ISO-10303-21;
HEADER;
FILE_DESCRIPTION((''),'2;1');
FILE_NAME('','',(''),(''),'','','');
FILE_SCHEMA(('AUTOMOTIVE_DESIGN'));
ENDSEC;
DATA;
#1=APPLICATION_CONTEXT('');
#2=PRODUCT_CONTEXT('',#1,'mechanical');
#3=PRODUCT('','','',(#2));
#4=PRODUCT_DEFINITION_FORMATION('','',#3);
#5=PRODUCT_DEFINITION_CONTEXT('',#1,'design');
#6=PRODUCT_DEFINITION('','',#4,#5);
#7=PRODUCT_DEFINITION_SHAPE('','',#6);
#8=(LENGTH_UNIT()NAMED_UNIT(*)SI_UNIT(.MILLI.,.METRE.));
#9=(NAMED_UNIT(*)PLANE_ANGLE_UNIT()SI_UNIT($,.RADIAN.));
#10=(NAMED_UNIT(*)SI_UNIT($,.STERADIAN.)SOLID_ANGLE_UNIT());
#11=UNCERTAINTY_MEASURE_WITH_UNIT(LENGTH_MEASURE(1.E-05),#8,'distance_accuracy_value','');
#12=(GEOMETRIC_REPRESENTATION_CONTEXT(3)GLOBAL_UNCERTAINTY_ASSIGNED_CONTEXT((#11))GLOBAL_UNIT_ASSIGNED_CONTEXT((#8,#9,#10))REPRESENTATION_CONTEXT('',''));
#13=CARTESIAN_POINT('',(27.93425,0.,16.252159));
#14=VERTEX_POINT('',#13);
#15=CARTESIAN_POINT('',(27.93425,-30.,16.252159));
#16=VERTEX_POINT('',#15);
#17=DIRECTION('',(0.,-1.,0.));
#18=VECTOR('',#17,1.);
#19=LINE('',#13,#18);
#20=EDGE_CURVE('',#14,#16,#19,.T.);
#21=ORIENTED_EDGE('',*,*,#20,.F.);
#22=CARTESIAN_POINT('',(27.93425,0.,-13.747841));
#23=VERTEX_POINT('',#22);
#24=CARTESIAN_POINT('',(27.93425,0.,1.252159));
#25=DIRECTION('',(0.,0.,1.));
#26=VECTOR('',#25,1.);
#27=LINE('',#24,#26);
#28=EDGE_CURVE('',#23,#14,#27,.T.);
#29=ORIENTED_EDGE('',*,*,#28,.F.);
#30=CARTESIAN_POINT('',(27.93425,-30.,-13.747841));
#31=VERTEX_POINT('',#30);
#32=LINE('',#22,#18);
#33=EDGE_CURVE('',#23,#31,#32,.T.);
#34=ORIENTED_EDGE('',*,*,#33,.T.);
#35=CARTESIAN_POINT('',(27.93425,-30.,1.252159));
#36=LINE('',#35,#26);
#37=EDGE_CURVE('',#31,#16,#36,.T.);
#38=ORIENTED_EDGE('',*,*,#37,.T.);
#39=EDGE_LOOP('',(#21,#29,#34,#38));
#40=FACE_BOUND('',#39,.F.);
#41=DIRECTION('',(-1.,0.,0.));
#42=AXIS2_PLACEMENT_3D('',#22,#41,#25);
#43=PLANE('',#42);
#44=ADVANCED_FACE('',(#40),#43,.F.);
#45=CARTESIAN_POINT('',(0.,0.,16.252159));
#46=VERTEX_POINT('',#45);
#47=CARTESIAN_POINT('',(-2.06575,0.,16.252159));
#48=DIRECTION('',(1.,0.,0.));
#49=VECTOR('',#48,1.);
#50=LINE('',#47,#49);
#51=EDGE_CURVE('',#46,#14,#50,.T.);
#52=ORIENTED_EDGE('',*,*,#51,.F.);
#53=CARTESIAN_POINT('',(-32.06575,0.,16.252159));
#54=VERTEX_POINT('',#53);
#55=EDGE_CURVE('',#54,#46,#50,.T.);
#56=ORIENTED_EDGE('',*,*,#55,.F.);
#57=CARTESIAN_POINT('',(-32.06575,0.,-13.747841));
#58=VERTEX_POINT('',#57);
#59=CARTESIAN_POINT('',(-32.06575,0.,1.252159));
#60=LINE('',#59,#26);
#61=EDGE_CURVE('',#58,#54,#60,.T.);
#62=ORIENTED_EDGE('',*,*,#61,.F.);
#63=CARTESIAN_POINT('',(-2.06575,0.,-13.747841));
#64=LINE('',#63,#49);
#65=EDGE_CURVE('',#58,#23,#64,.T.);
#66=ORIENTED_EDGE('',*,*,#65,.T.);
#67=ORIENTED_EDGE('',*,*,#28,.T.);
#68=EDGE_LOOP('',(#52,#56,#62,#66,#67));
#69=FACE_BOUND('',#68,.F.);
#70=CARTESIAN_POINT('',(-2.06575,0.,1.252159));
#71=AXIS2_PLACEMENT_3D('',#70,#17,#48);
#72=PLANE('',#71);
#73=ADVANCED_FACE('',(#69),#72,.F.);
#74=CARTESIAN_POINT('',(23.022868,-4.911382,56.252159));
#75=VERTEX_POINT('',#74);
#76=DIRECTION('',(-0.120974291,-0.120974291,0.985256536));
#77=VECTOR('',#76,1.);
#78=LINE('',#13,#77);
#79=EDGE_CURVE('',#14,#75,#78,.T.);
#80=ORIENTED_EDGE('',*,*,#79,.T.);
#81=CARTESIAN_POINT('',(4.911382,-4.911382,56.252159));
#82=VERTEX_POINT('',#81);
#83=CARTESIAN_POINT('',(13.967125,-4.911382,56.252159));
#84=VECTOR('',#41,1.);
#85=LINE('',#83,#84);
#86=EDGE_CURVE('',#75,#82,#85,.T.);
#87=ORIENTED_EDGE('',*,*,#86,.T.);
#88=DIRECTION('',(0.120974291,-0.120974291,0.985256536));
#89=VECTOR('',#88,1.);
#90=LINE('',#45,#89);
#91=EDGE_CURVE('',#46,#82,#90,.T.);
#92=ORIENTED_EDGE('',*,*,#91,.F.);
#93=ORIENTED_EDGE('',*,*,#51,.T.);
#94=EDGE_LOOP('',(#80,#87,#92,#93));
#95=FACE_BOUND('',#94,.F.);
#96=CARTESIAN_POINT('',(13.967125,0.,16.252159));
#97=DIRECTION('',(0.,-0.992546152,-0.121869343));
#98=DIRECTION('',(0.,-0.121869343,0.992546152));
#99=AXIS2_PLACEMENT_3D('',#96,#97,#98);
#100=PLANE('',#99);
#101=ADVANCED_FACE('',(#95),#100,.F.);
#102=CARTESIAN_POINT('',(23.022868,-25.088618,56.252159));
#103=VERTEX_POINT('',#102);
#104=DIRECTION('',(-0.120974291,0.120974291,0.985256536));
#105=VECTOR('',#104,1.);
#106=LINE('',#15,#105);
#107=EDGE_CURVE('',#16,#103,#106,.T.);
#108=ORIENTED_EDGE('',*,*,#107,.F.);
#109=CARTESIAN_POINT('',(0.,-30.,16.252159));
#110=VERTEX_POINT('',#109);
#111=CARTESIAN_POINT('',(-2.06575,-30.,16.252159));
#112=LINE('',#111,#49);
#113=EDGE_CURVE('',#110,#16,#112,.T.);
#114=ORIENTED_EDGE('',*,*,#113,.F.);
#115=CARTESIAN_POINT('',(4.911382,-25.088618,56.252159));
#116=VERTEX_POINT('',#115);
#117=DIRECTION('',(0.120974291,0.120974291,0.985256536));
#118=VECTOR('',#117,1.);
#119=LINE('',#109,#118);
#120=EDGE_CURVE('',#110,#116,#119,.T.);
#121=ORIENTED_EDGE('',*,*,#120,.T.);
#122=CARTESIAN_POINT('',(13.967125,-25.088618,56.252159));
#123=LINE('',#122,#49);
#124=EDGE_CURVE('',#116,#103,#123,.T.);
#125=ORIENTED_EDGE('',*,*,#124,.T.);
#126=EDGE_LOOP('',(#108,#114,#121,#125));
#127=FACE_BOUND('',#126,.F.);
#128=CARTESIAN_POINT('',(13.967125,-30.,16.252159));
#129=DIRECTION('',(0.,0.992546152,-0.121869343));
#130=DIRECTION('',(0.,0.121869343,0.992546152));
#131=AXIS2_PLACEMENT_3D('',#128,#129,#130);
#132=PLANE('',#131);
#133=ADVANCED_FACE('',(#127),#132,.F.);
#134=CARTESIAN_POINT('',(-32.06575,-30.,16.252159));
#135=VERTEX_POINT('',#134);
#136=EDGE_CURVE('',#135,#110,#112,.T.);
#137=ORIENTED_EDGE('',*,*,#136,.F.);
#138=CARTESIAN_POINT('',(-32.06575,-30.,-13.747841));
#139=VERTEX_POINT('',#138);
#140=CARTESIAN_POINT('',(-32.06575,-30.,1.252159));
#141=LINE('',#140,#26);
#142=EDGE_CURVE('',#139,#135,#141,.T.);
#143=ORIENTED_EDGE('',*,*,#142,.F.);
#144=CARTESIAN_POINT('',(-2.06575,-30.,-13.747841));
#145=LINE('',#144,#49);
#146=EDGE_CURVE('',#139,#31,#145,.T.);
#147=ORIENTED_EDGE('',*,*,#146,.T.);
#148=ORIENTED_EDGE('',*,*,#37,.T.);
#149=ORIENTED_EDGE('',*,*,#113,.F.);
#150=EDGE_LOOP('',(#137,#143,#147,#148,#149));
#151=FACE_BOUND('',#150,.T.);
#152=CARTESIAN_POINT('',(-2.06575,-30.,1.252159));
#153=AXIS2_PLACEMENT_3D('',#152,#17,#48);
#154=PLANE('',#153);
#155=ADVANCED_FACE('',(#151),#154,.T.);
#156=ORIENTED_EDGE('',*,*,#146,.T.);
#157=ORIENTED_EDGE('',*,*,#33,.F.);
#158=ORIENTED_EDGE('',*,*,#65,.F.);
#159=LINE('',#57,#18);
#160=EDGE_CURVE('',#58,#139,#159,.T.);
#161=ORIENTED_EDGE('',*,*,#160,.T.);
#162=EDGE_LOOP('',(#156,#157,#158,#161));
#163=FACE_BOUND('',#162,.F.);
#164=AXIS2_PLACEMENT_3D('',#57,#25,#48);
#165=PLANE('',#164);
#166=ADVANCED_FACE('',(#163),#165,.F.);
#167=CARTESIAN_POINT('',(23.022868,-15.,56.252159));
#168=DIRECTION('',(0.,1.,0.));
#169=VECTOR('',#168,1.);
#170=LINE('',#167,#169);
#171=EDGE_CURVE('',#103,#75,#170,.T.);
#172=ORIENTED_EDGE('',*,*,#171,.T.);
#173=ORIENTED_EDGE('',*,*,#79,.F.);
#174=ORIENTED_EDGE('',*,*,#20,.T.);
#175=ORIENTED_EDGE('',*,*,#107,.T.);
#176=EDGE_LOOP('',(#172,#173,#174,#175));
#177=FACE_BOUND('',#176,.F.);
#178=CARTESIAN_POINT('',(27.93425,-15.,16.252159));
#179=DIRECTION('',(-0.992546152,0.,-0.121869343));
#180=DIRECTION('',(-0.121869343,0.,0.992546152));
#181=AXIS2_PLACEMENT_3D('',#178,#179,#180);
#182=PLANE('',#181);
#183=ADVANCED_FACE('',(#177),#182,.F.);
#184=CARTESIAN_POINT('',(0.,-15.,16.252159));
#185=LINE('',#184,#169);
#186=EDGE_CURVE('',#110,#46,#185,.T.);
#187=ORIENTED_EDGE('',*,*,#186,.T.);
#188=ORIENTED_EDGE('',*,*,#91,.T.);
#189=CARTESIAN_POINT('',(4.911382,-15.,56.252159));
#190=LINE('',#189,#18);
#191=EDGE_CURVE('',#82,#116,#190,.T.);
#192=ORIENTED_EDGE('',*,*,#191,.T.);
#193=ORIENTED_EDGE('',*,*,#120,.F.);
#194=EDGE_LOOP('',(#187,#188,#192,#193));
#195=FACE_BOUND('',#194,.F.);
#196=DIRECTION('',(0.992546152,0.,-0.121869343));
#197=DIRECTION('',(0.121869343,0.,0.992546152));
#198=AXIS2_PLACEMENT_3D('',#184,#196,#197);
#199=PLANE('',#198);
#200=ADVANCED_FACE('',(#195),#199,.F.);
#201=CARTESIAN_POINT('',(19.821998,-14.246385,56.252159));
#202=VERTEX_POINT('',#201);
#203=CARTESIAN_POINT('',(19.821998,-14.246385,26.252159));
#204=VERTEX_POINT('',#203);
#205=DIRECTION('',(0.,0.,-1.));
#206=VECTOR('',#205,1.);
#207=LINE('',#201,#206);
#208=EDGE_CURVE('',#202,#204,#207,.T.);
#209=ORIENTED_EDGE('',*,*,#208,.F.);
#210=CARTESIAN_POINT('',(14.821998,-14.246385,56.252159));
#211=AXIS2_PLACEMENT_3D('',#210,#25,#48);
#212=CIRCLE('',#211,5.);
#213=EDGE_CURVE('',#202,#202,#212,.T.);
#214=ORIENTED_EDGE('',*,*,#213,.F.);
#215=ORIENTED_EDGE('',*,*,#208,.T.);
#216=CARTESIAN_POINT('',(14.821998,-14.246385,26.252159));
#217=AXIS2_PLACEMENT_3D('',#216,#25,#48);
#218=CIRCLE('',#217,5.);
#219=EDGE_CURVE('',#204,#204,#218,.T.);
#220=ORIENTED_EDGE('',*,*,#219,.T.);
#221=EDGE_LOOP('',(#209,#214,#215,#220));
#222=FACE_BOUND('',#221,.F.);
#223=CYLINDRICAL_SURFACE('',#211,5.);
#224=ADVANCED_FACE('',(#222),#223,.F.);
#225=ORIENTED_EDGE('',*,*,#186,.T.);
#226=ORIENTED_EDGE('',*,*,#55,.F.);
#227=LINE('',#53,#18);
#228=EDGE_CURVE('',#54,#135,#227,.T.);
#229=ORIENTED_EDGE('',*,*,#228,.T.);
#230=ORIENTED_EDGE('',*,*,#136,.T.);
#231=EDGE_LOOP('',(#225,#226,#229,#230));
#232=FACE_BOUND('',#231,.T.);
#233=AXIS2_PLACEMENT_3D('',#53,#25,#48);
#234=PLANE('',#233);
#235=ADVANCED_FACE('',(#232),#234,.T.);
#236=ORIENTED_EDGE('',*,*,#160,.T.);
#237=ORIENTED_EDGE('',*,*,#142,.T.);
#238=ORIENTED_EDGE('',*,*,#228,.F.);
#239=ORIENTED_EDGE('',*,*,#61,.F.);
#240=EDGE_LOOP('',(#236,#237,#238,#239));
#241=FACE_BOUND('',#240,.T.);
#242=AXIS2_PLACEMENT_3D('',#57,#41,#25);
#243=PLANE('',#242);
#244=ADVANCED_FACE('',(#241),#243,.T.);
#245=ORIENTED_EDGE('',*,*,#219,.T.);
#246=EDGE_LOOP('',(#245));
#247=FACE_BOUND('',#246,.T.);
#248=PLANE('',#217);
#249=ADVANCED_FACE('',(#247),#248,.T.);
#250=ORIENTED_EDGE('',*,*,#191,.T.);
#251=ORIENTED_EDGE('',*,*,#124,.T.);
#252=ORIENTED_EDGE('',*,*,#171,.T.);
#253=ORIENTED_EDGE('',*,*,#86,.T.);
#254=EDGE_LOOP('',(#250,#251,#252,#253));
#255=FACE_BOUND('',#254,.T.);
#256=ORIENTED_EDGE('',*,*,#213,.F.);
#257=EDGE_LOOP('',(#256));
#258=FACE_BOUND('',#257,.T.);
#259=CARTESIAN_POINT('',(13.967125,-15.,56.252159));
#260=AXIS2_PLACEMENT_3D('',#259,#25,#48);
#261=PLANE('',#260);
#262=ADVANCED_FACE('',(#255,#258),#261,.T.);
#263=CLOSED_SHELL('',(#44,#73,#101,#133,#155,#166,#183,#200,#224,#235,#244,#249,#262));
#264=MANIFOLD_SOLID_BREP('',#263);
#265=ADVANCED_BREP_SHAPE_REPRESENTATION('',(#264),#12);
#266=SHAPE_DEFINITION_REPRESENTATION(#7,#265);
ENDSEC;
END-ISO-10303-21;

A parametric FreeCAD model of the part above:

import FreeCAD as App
import Part
import Sketcher
from FreeCAD import Vector


def add_polygon(sketch, points):
    """Adds a closed chain of lines whose ends are joined by coincident constraints."""
    first, n = sketch.GeometryCount, len(points)
    for a, b in zip(points, points[1:] + points[:1]):
        sketch.addGeometry(Part.LineSegment(App.Vector(*a, 0), App.Vector(*b, 0)), False)
    for i in range(n):
        sketch.addConstraint(Sketcher.Constraint("Coincident", first + i, 2, first + (i + 1) % n, 1))

doc = App.newDocument("Part")
params = doc.addObject("Spreadsheet::Sheet", "Params")
for row, (alias, value) in enumerate([
    ("sketch1_width", "60 mm"),
    ("sketch1_height", "30 mm"),
    ("pad1_length", "30 mm"),
    ("sketch2_height", "30 mm"),
    ("pad2_length", "40 mm"),
    ("pad2_taper", "-7 deg"),
    ("sketch3_diameter", "10 mm"),
    ("pocket1_length", "30 mm"),
], start=1):
    params.set(f"A{row}", alias)
    params.set(f"B{row}", "=" + value)
    params.setAlias(f"B{row}", alias)

body = doc.addObject("PartDesign::Body", "Body")

# Sketch on XZ plane
sketch1 = body.newObject("Sketcher::SketchObject", "Sketch")
sketch1.AttachmentSupport = (doc.getObject("XZ_Plane"), [""])
sketch1.MapMode = "FlatFace"
add_polygon(sketch1, [(-32, 16), (-32, -14), (28, -14), (28, 16)])  # lines 0-3
sketch1.addConstraint([
    Sketcher.Constraint("Vertical", 0),
    Sketcher.Constraint("Horizontal", 1),
    Sketcher.Constraint("Vertical", 2),
    Sketcher.Constraint("Horizontal", 3),
    Sketcher.Constraint("DistanceX", 1, 1, 1, 2, 60.0),
    Sketcher.Constraint("DistanceY", 0, 2, 0, 1, 30.0),
    Sketcher.Constraint("DistanceX", 0, 2, -1, 1, 32.06575),
    Sketcher.Constraint("DistanceY", 0, 2, -1, 1, 13.747841),
])
sketch1.setExpression("Constraints[8]", "Params.sketch1_width")
sketch1.setExpression("Constraints[9]", "Params.sketch1_height")
pad1 = body.newObject("PartDesign::Pad", "Pad")
pad1.Profile = sketch1
pad1.setExpression("Length", "Params.pad1_length")

# Sketch on XY plane
sketch2 = body.newObject("Sketcher::SketchObject", "Sketch001")
sketch2.AttachmentSupport = (doc.getObject("XY_Plane"), [""])
sketch2.MapMode = "FlatFace"
sketch2.AttachmentOffset = App.Placement(Vector(0, 0, 16.252159), App.Rotation())
add_polygon(sketch2, [(0, 0), (0, -30), (28, -30), (28, 0)])  # lines 0-3
sketch2.addConstraint([
    Sketcher.Constraint("Vertical", 0),
    Sketcher.Constraint("Horizontal", 1),
    Sketcher.Constraint("Vertical", 2),
    Sketcher.Constraint("Horizontal", 3),
    Sketcher.Constraint("Coincident", 3, 2, -1, 1),
    Sketcher.Constraint("DistanceY", 0, 2, 0, 1, 30.0),
    Sketcher.Constraint("DistanceX", 1, 1, 1, 2, 27.93425),
])
sketch2.setExpression("Constraints[9]", "Params.sketch2_height")
pad2 = body.newObject("PartDesign::Pad", "Pad001")
pad2.Profile = sketch2
pad2.setExpression("Length", "Params.pad2_length")
pad2.setExpression("TaperAngle", "Params.pad2_taper")

# Sketch on XY plane
sketch3 = body.newObject("Sketcher::SketchObject", "Sketch002")
sketch3.AttachmentSupport = (doc.getObject("XY_Plane"), [""])
sketch3.MapMode = "FlatFace"
sketch3.AttachmentOffset = App.Placement(Vector(0, 0, 56.252159), App.Rotation())
sketch3.addGeometry(Part.Circle(Vector(15, -14, 0), Vector(0, 0, 1), 5), False)
sketch3.addConstraint([
    Sketcher.Constraint("Diameter", 0, 10.0),
    Sketcher.Constraint("DistanceX", -1, 1, 0, 3, 14.821998),
    Sketcher.Constraint("DistanceY", 0, 3, -1, 1, 14.246385),
])
sketch3.setExpression("Constraints[0]", "Params.sketch3_diameter")
pocket1 = body.newObject("PartDesign::Pocket", "Pocket")
pocket1.Profile = sketch3
pocket1.setExpression("Length", "Params.pocket1_length")

doc.recompute()
